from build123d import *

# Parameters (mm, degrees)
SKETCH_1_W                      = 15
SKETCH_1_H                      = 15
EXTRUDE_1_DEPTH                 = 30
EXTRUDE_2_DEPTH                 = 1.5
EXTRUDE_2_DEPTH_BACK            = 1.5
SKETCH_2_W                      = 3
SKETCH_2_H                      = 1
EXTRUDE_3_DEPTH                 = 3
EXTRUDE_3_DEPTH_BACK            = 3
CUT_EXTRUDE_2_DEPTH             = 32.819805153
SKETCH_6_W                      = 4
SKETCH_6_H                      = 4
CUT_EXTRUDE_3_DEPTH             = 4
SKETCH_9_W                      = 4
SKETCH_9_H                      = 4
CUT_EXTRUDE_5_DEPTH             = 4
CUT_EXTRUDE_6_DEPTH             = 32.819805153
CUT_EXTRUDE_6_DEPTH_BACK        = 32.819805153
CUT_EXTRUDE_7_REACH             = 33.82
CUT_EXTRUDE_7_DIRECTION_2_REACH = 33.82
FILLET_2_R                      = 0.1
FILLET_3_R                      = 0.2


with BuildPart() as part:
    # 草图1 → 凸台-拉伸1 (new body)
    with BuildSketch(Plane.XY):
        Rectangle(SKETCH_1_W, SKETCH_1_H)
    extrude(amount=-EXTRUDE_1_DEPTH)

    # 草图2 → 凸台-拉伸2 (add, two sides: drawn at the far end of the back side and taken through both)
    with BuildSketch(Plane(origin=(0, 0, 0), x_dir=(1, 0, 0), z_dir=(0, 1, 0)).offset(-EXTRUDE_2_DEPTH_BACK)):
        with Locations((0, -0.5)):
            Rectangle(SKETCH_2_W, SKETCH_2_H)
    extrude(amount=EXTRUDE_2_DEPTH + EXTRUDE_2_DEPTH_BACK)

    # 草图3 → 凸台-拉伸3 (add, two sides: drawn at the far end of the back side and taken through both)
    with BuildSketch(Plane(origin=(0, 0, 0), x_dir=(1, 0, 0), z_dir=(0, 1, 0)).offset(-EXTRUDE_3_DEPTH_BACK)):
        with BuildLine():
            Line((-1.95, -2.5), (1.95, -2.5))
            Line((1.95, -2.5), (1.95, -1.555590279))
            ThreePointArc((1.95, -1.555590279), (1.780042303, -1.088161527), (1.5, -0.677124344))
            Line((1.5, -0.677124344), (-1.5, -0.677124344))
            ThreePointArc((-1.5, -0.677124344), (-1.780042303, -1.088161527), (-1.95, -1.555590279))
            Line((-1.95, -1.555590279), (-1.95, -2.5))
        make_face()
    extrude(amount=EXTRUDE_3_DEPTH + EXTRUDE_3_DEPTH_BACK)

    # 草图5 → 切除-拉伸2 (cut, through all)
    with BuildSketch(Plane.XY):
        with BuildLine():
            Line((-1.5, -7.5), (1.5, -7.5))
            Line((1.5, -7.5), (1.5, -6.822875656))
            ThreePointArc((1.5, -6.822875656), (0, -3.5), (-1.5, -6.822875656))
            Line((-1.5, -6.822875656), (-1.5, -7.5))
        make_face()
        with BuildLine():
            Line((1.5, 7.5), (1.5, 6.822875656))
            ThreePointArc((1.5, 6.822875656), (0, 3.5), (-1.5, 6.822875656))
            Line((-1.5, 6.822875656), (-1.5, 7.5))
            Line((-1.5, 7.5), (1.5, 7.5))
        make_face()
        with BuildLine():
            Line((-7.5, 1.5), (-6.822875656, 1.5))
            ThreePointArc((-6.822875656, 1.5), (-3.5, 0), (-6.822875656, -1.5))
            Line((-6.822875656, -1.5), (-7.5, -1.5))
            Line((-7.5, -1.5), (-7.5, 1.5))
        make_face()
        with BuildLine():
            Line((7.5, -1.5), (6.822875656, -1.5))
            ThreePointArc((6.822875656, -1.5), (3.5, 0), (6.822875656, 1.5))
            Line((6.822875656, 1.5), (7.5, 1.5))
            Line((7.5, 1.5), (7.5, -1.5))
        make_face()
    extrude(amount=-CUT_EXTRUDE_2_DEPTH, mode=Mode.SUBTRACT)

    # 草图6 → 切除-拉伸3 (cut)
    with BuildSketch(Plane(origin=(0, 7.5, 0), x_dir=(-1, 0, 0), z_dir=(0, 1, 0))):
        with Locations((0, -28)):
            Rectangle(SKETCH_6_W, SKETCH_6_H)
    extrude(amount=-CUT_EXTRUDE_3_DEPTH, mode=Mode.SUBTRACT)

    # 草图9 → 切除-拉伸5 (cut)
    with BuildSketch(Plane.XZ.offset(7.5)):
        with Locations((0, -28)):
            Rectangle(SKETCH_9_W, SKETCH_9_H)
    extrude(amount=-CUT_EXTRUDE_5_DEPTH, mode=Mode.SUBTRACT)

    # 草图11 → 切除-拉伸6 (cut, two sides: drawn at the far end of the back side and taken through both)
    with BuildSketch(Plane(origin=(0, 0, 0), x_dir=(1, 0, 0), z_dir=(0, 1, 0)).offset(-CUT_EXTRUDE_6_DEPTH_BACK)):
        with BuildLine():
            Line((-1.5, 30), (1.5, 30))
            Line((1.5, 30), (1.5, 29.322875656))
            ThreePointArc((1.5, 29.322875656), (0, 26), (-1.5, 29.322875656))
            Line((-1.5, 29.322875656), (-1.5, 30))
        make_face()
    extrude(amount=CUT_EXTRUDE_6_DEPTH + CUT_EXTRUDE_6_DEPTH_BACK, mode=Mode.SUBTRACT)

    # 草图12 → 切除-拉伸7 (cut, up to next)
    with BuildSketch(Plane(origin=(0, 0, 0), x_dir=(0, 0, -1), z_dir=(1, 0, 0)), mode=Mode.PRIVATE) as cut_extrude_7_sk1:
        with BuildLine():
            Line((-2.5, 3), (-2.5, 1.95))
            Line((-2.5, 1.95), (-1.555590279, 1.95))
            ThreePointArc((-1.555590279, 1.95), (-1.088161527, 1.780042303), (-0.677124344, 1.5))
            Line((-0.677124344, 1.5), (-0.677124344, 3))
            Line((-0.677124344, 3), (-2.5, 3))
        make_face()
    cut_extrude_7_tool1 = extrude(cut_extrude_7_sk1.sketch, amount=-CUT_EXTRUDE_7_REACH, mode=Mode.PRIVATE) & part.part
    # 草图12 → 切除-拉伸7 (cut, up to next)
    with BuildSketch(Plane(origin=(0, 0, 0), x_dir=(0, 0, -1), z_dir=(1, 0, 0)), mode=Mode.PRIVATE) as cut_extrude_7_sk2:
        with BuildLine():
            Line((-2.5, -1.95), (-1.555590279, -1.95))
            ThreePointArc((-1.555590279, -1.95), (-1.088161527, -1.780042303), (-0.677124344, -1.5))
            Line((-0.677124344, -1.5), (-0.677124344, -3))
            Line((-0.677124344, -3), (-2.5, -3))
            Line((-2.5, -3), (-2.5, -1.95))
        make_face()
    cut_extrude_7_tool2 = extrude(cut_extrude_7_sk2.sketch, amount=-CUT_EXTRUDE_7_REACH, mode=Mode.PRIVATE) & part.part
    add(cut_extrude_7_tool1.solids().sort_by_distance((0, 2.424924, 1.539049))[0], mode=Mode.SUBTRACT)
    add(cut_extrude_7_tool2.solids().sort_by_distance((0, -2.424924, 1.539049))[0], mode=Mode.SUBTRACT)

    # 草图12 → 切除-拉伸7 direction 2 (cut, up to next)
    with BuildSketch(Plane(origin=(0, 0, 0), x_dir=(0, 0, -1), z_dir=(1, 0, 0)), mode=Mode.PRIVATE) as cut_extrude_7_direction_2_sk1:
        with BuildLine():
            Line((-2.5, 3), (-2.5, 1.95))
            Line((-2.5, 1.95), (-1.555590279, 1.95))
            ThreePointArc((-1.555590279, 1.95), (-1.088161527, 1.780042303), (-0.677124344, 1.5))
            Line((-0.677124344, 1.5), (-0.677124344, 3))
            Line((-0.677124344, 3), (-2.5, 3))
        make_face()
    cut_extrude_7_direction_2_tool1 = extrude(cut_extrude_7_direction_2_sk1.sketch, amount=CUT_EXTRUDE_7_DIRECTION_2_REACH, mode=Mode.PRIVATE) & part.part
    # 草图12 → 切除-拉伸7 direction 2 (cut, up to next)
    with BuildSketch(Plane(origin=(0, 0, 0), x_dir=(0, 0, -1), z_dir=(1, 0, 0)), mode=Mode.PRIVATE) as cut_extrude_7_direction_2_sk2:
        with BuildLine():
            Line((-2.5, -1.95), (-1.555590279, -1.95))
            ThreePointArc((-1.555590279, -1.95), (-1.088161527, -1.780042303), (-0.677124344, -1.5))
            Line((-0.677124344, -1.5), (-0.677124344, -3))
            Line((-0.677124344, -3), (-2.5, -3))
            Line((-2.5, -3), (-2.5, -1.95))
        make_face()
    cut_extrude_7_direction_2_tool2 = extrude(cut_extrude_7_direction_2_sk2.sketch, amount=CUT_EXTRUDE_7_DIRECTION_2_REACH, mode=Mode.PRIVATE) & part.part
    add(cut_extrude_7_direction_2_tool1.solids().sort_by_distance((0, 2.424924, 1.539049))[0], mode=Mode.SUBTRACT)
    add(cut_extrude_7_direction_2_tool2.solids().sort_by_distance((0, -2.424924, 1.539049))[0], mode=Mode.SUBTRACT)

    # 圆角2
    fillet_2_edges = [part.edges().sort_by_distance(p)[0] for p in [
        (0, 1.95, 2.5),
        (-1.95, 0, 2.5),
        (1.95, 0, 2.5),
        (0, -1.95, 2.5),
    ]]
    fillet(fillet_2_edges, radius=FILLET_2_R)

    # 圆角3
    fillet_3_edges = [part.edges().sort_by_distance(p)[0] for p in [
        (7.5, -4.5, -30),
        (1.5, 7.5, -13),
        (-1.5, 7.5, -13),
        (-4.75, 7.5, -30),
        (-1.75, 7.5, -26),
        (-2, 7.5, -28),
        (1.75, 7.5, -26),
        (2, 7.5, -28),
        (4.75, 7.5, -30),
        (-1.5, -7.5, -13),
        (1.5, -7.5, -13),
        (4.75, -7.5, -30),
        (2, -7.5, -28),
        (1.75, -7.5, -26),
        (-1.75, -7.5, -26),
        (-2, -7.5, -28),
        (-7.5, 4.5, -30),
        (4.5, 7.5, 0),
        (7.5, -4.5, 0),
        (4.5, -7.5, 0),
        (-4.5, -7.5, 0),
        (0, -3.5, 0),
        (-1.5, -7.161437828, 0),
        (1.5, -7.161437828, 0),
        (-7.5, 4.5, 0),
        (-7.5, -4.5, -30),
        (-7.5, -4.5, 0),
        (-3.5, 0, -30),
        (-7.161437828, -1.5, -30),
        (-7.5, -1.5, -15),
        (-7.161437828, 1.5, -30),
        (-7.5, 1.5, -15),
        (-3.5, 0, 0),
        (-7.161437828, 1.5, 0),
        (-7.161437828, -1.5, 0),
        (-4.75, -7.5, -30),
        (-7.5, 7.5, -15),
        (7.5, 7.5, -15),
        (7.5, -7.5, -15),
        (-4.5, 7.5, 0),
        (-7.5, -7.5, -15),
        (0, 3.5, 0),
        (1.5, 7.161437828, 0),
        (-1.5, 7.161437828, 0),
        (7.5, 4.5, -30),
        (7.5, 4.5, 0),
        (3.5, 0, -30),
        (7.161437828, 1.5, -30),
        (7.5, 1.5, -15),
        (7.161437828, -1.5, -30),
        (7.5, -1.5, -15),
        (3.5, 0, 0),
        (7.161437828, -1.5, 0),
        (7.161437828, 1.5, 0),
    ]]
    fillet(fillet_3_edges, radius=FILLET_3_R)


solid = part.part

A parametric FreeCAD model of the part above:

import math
import FreeCAD as App
import Part
import Sketcher

V = App.Vector


def edges_at(feature, points):
    """Names of the edges that pass closest to the given points."""
    edges = feature.Shape.Edges
    near = lambda p: min(range(len(edges)), key=lambda i: edges[i].distToShape(Part.Vertex(*p))[0])
    return sorted({f"Edge{near(p) + 1}" for p in points})


def add_polygon(sketch, points):
    """Adds a closed chain of lines whose ends are joined by coincident constraints."""
    first, n = sketch.GeometryCount, len(points)
    for a, b in zip(points, points[1:] + points[:1]):
        sketch.addGeometry(Part.LineSegment(App.Vector(*a, 0), App.Vector(*b, 0)), False)
    for i in range(n):
        sketch.addConstraint(Sketcher.Constraint("Coincident", first + i, 2, first + (i + 1) % n, 1))

doc = App.newDocument("Part")
params = doc.addObject("Spreadsheet::Sheet", "Params")
for row, (alias, value) in enumerate([
    ("sketch1_width", "15 mm"),
    ("pad1_length", "30 mm"),
    ("sketch2_width", "3 mm"),
    ("sketch2_height", "1 mm"),
    ("pad2_length", "1.5 mm"),
    ("pad2_length2", "1.5 mm"),
    ("sketch3_radius", "2 mm"),
    ("sketch3_width", "3 mm"),
    ("sketch3_width2", "3.9 mm"),
    ("pad3_length", "3 mm"),
    ("pad3_length2", "3 mm"),
    ("sketch4_radius", "2 mm"),
    ("sketch4_width", "3 mm"),
    ("sketch5_width", "4 mm"),
    ("pocket2_length", "4 mm"),
    ("sketch6_width", "4 mm"),
    ("pocket3_length", "4 mm"),
    ("sketch7_radius", "2 mm"),
    ("sketch7_width", "3 mm"),
    ("sketch8_radius", "2 mm"),
    ("sketch8_width", "1.5 mm"),
    ("sketch8_width2", "1.05 mm"),
    ("sketch9_radius", "2 mm"),
    ("sketch9_width", "1.5 mm"),
    ("sketch9_width2", "1.05 mm"),
    ("sketch10_radius", "2 mm"),
    ("sketch10_width", "1.5 mm"),
    ("sketch10_width2", "1.05 mm"),
    ("sketch11_radius", "2 mm"),
    ("sketch11_width", "1.5 mm"),
    ("sketch11_width2", "1.05 mm"),
    ("fillet_radius", "0.1 mm"),
    ("fillet2_radius", "0.2 mm"),
], start=1):
    params.set(f"A{row}", alias)
    params.set(f"B{row}", "=" + value)
    params.setAlias(f"B{row}", alias)

body = doc.addObject("PartDesign::Body", "Body")

sketch1 = body.newObject("Sketcher::SketchObject", "Sketch")
sketch1.AttachmentSupport = (doc.getObject("XY_Plane"), [""])
sketch1.MapMode = "FlatFace"
add_polygon(sketch1, [(-7.5, 7.5), (-7.5, -7.5), (7.5, -7.5), (7.5, 7.5)])
sketch1.addConstraint(Sketcher.Constraint("Vertical", 0))
sketch1.addConstraint(Sketcher.Constraint("Horizontal", 1))
sketch1.addConstraint(Sketcher.Constraint("Vertical", 2))
sketch1.addConstraint(Sketcher.Constraint("Horizontal", 3))
sketch1.addConstraint(Sketcher.Constraint("Symmetric", 0, 2, 2, 2, -1, 1))
sketch1.addConstraint(Sketcher.Constraint("Equal", 3, 0))
sketch1.addConstraint(Sketcher.Constraint("DistanceX", 1, 1, 1, 2, 15.0))
sketch1.setExpression("Constraints[10]", "Params.sketch1_width")
pad1 = body.newObject("PartDesign::Pad", "Pad")
pad1.Profile = sketch1
pad1.setExpression("Length", "Params.pad1_length")
pad1.Reversed = True

sketch2 = body.newObject("Sketcher::SketchObject", "Sketch001")
sketch2.AttachmentSupport = (doc.getObject("XZ_Plane"), [""])
sketch2.MapMode = "FlatFace"
add_polygon(sketch2, [(-1.5, 0), (-1.5, 1), (1.5, 1), (1.5, 0)])
sketch2.addConstraint(Sketcher.Constraint("Vertical", 0))
sketch2.addConstraint(Sketcher.Constraint("Horizontal", 1))
sketch2.addConstraint(Sketcher.Constraint("Vertical", 2))
sketch2.addConstraint(Sketcher.Constraint("Horizontal", 3))
sketch2.addConstraint(Sketcher.Constraint("Symmetric", 2, 2, 3, 2, -1, 1))
sketch2.addConstraint(Sketcher.Constraint("DistanceX", 1, 1, 1, 2, 3.0))
sketch2.addConstraint(Sketcher.Constraint("DistanceY", 0, 1, 0, 2, 1.0))
sketch2.setExpression("Constraints[9]", "Params.sketch2_width")
sketch2.setExpression("Constraints[10]", "Params.sketch2_height")
pad2 = body.newObject("PartDesign::Pad", "Pad001")
pad2.Profile = sketch2
pad2.Type = "TwoLengths"
pad2.setExpression("Length", "Params.pad2_length")
pad2.setExpression("Length2", "Params.pad2_length2")
pad2.Reversed = True

sketch3 = body.newObject("Sketcher::SketchObject", "Sketch002")
sketch3.AttachmentSupport = (doc.getObject("XZ_Plane"), [""])
sketch3.MapMode = "FlatFace"
sketch3.addGeometry(Part.LineSegment(V(-1.95, 2.5, 0), V(1.95, 2.5, 0)), False)
sketch3.addGeometry(Part.LineSegment(V(1.95, 2.5, 0), V(1.95, 1.55559, 0)), False)
sketch3.addGeometry(Part.ArcOfCircle(Part.Circle(V(0, 2, 0), V(0, 0, 1), 2), math.radians(-41.409622), math.radians(-12.838568)), False)
sketch3.addGeometry(Part.LineSegment(V(1.5, 0.677124, 0), V(-1.5, 0.677124, 0)), False)
sketch3.addGeometry(Part.ArcOfCircle(Part.Circle(V(0, 2, 0), V(0, 0, 1), 2), math.radians(-167.161432), math.radians(-138.590378)), False)
sketch3.addGeometry(Part.LineSegment(V(-1.95, 1.55559, 0), V(-1.95, 2.5, 0)), False)
sketch3.addConstraint(Sketcher.Constraint("Coincident", 0, 2, 1, 1))
sketch3.addConstraint(Sketcher.Constraint("Coincident", 1, 2, 2, 2))
sketch3.addConstraint(Sketcher.Constraint("Coincident", 2, 1, 3, 1))
sketch3.addConstraint(Sketcher.Constraint("Coincident", 3, 2, 4, 2))
sketch3.addConstraint(Sketcher.Constraint("Coincident", 4, 1, 5, 1))
sketch3.addConstraint(Sketcher.Constraint("Coincident", 5, 2, 0, 1))
sketch3.addConstraint(Sketcher.Constraint("Horizontal", 0))
sketch3.addConstraint(Sketcher.Constraint("Vertical", 1))
sketch3.addConstraint(Sketcher.Constraint("Horizontal", 3))
sketch3.addConstraint(Sketcher.Constraint("Vertical", 5))
sketch3.addConstraint(Sketcher.Constraint("Coincident", 4, 3, 2, 3))
sketch3.addConstraint(Sketcher.Constraint("Equal", 2, 4))
sketch3.addConstraint(Sketcher.Constraint("Symmetric", 1, 2, 4, 1, -2))
sketch3.addConstraint(Sketcher.Constraint("Radius", 2, 2.0))
sketch3.addConstraint(Sketcher.Constraint("DistanceX", 3, 2, 3, 1, 3.0))
sketch3.addConstraint(Sketcher.Constraint("DistanceX", 0, 1, 0, 2, 3.9))
sketch3.addConstraint(Sketcher.Constraint("DistanceY", -1, 1, 2, 3, 2.0))
sketch3.addConstraint(Sketcher.Constraint("DistanceY", -1, 1, 0, 2, 2.5))
sketch3.setExpression("Constraints[13]", "Params.sketch3_radius")
sketch3.setExpression("Constraints[14]", "Params.sketch3_width")
sketch3.setExpression("Constraints[15]", "Params.sketch3_width2")
pad3 = body.newObject("PartDesign::Pad", "Pad002")
pad3.Profile = sketch3
pad3.Type = "TwoLengths"
pad3.setExpression("Length", "Params.pad3_length")
pad3.setExpression("Length2", "Params.pad3_length2")
pad3.Reversed = True

sketch4 = body.newObject("Sketcher::SketchObject", "Sketch003")
sketch4.AttachmentSupport = (doc.getObject("XY_Plane"), [""])
sketch4.MapMode = "FlatFace"
sketch4.addGeometry(Part.LineSegment(V(-1.5, -7.5, 0), V(1.5, -7.5, 0)), False)
sketch4.addGeometry(Part.LineSegment(V(1.5, -7.5, 0), V(1.5, -6.822876, 0)), False)
sketch4.addGeometry(Part.ArcOfCircle(Part.Circle(V(0, -5.5, 0), V(0, 0, 1), 2), math.radians(-41.409622), math.radians(221.409622)), False)
sketch4.addGeometry(Part.LineSegment(V(-1.5, -6.822876, 0), V(-1.5, -7.5, 0)), False)
sketch4.addGeometry(Part.LineSegment(V(1.5, 6.822876, 0), V(1.5, 7.5, 0)), False)
sketch4.addGeometry(Part.LineSegment(V(1.5, 7.5, 0), V(-1.5, 7.5, 0)), False)
sketch4.addGeometry(Part.LineSegment(V(-1.5, 7.5, 0), V(-1.5, 6.822876, 0)), False)
sketch4.addGeometry(Part.ArcOfCircle(Part.Circle(V(0, 5.5, 0), V(0, 0, 1), 2), math.radians(138.590378), math.radians(401.409622)), False)
sketch4.addGeometry(Part.LineSegment(V(-6.822876, 1.5, 0), V(-7.5, 1.5, 0)), False)
sketch4.addGeometry(Part.LineSegment(V(-7.5, 1.5, 0), V(-7.5, -1.5, 0)), False)
sketch4.addGeometry(Part.LineSegment(V(-7.5, -1.5, 0), V(-6.822876, -1.5, 0)), False)
sketch4.addGeometry(Part.ArcOfCircle(Part.Circle(V(-5.5, 0, 0), V(0, 0, 1), 2), math.radians(-131.409622), math.radians(131.409622)), False)
sketch4.addGeometry(Part.LineSegment(V(6.822876, -1.5, 0), V(7.5, -1.5, 0)), False)
sketch4.addGeometry(Part.LineSegment(V(7.5, -1.5, 0), V(7.5, 1.5, 0)), False)
sketch4.addGeometry(Part.LineSegment(V(7.5, 1.5, 0), V(6.822876, 1.5, 0)), False)
sketch4.addGeometry(Part.ArcOfCircle(Part.Circle(V(5.5, 0, 0), V(0, 0, 1), 2), math.radians(48.590378), math.radians(311.409622)), False)
sketch4.addConstraint(Sketcher.Constraint("Coincident", 0, 2, 1, 1))
sketch4.addConstraint(Sketcher.Constraint("Coincident", 1, 2, 2, 1))
sketch4.addConstraint(Sketcher.Constraint("Coincident", 2, 2, 3, 1))
sketch4.addConstraint(Sketcher.Constraint("Coincident", 3, 2, 0, 1))
sketch4.addConstraint(Sketcher.Constraint("Coincident", 4, 2, 5, 1))
sketch4.addConstraint(Sketcher.Constraint("Coincident", 5, 2, 6, 1))
sketch4.addConstraint(Sketcher.Constraint("Coincident", 6, 2, 7, 1))
sketch4.addConstraint(Sketcher.Constraint("Coincident", 7, 2, 4, 1))
sketch4.addConstraint(Sketcher.Constraint("Coincident", 8, 2, 9, 1))
sketch4.addConstraint(Sketcher.Constraint("Coincident", 9, 2, 10, 1))
sketch4.addConstraint(Sketcher.Constraint("Coincident", 10, 2, 11, 1))
sketch4.addConstraint(Sketcher.Constraint("Coincident", 11, 2, 8, 1))
sketch4.addConstraint(Sketcher.Constraint("Coincident", 12, 2, 13, 1))
sketch4.addConstraint(Sketcher.Constraint("Coincident", 13, 2, 14, 1))
sketch4.addConstraint(Sketcher.Constraint("Coincident", 14, 2, 15, 1))
sketch4.addConstraint(Sketcher.Constraint("Coincident", 15, 2, 12, 1))
sketch4.addConstraint(Sketcher.Constraint("Horizontal", 0))
sketch4.addConstraint(Sketcher.Constraint("Vertical", 1))
sketch4.addConstraint(Sketcher.Constraint("Vertical", 3))
sketch4.addConstraint(Sketcher.Constraint("Vertical", 4))
sketch4.addConstraint(Sketcher.Constraint("Horizontal", 5))
sketch4.addConstraint(Sketcher.Constraint("Vertical", 6))
sketch4.addConstraint(Sketcher.Constraint("Horizontal", 8))
sketch4.addConstraint(Sketcher.Constraint("Vertical", 9))
sketch4.addConstraint(Sketcher.Constraint("Horizontal", 10))
sketch4.addConstraint(Sketcher.Constraint("Horizontal", 12))
sketch4.addConstraint(Sketcher.Constraint("Vertical", 13))
sketch4.addConstraint(Sketcher.Constraint("Horizontal", 14))
sketch4.addConstraint(Sketcher.Constraint("Equal", 2, 7))
sketch4.addConstraint(Sketcher.Constraint("Equal", 7, 11))
sketch4.addConstraint(Sketcher.Constraint("Equal", 11, 15))
sketch4.addConstraint(Sketcher.Constraint("Symmetric", 2, 3, 7, 3, -1, 1))
sketch4.addConstraint(Sketcher.Constraint("Symmetric", 11, 3, 15, 3, -1, 1))
sketch4.addConstraint(Sketcher.Constraint("Symmetric", 3, 2, 4, 2, -1, 1))
sketch4.addConstraint(Sketcher.Constraint("Symmetric", 8, 2, 12, 2, -1, 1))
sketch4.addConstraint(Sketcher.Constraint("Symmetric", 1, 2, 2, 2, -2))
sketch4.addConstraint(Sketcher.Constraint("Symmetric", 11, 2, 14, 2, -2))
sketch4.addConstraint(Sketcher.Constraint("Horizontal", 6, 2, 7, 2))
sketch4.addConstraint(Sketcher.Constraint("Horizontal", 10, 2, 12, 2))
sketch4.addConstraint(Sketcher.Constraint("Equal", 14, 1))
sketch4.addConstraint(Sketcher.Constraint("Equal", 5, 9))
sketch4.addConstraint(Sketcher.Constraint("Radius", 2, 2.0))
sketch4.addConstraint(Sketcher.Constraint("DistanceX", 0, 1, 0, 2, 3.0))
sketch4.addConstraint(Sketcher.Constraint("DistanceY", 2, 3, 7, 3, 11.0))
sketch4.addConstraint(Sketcher.Constraint("DistanceX", 11, 3, 15, 3, 11.0))
sketch4.addConstraint(Sketcher.Constraint("DistanceY", 0, 2, 2, 3, 2.0))
sketch4.setExpression("Constraints[41]", "Params.sketch4_radius")
sketch4.setExpression("Constraints[42]", "Params.sketch4_width")
pocket1 = body.newObject("PartDesign::Pocket", "Pocket")
pocket1.Profile = sketch4
pocket1.Type = "ThroughAll"

sketch5 = body.newObject("Sketcher::SketchObject", "Sketch004")
sketch5.AttachmentSupport = (doc.getObject("XZ_Plane"), [""])
sketch5.MapMode = "FlatFace"
sketch5.AttachmentOffset = App.Placement(V(0, 0, -7.5), App.Rotation())
add_polygon(sketch5, [(2, -26), (2, -30), (-2, -30), (-2, -26)])
sketch5.addConstraint(Sketcher.Constraint("Vertical", 0))
sketch5.addConstraint(Sketcher.Constraint("Horizontal", 1))
sketch5.addConstraint(Sketcher.Constraint("Vertical", 2))
sketch5.addConstraint(Sketcher.Constraint("Horizontal", 3))
sketch5.addConstraint(Sketcher.Constraint("Equal", 3, 0))
sketch5.addConstraint(Sketcher.Constraint("DistanceX", 1, 2, 1, 1, 4.0))
sketch5.addConstraint(Sketcher.Constraint("DistanceX", -1, 1, 0, 2, 2.0))
sketch5.addConstraint(Sketcher.Constraint("DistanceY", 0, 2, -1, 1, 30.0))
sketch5.setExpression("Constraints[9]", "Params.sketch5_width")
pocket2 = body.newObject("PartDesign::Pocket", "Pocket001")
pocket2.Profile = sketch5
pocket2.setExpression("Length", "Params.pocket2_length")
pocket2.Reversed = True

sketch6 = body.newObject("Sketcher::SketchObject", "Sketch005")
sketch6.AttachmentSupport = (doc.getObject("XZ_Plane"), [""])
sketch6.MapMode = "FlatFace"
sketch6.AttachmentOffset = App.Placement(V(0, 0, 7.5), App.Rotation())
add_polygon(sketch6, [(-2, -26), (-2, -30), (2, -30), (2, -26)])
sketch6.addConstraint(Sketcher.Constraint("Vertical", 0))
sketch6.addConstraint(Sketcher.Constraint("Horizontal", 1))
sketch6.addConstraint(Sketcher.Constraint("Vertical", 2))
sketch6.addConstraint(Sketcher.Constraint("Horizontal", 3))
sketch6.addConstraint(Sketcher.Constraint("Equal", 3, 0))
sketch6.addConstraint(Sketcher.Constraint("DistanceX", 1, 1, 1, 2, 4.0))
sketch6.addConstraint(Sketcher.Constraint("DistanceX", 0, 2, -1, 1, 2.0))
sketch6.addConstraint(Sketcher.Constraint("DistanceY", 0, 2, -1, 1, 30.0))
sketch6.setExpression("Constraints[9]", "Params.sketch6_width")
pocket3 = body.newObject("PartDesign::Pocket", "Pocket002")
pocket3.Profile = sketch6
pocket3.setExpression("Length", "Params.pocket3_length")

sketch7 = body.newObject("Sketcher::SketchObject", "Sketch006")
sketch7.AttachmentSupport = (doc.getObject("XZ_Plane"), [""])
sketch7.MapMode = "FlatFace"
sketch7.addGeometry(Part.LineSegment(V(1.5, -30, 0), V(-1.5, -30, 0)), False)
sketch7.addGeometry(Part.LineSegment(V(-1.5, -30, 0), V(-1.5, -29.322876, 0)), False)
sketch7.addGeometry(Part.ArcOfCircle(Part.Circle(V(0, -28, 0), V(0, 0, 1), 2), math.radians(-41.409622), math.radians(221.409622)), False)
sketch7.addGeometry(Part.LineSegment(V(1.5, -29.322876, 0), V(1.5, -30, 0)), False)
sketch7.addConstraint(Sketcher.Constraint("Coincident", 0, 2, 1, 1))
sketch7.addConstraint(Sketcher.Constraint("Coincident", 1, 2, 2, 2))
sketch7.addConstraint(Sketcher.Constraint("Coincident", 2, 1, 3, 1))
sketch7.addConstraint(Sketcher.Constraint("Coincident", 3, 2, 0, 1))
sketch7.addConstraint(Sketcher.Constraint("Horizontal", 0))
sketch7.addConstraint(Sketcher.Constraint("Vertical", 1))
sketch7.addConstraint(Sketcher.Constraint("Vertical", 3))
sketch7.addConstraint(Sketcher.Constraint("Symmetric", 1, 2, 2, 1, -2))
sketch7.addConstraint(Sketcher.Constraint("Radius", 2, 2.0))
sketch7.addConstraint(Sketcher.Constraint("DistanceX", 0, 2, 0, 1, 3.0))
sketch7.addConstraint(Sketcher.Constraint("DistanceY", 2, 3, -1, 1, 28.0))
sketch7.addConstraint(Sketcher.Constraint("DistanceY", 0, 2, -1, 1, 30.0))
sketch7.setExpression("Constraints[8]", "Params.sketch7_radius")
sketch7.setExpression("Constraints[9]", "Params.sketch7_width")
pocket4 = body.newObject("PartDesign::Pocket", "Pocket003")
pocket4.Profile = sketch7
pocket4.Type = "ThroughAll"
pocket4.Midplane = True

sketch8 = body.newObject("Sketcher::SketchObject", "Sketch007")
sketch8.AttachmentSupport = (doc.getObject("YZ_Plane"), [""])
sketch8.MapMode = "FlatFace"
sketch8.addGeometry(Part.LineSegment(V(3, 2.5, 0), V(1.95, 2.5, 0)), False)
sketch8.addGeometry(Part.LineSegment(V(1.95, 2.5, 0), V(1.95, 1.55559, 0)), False)
sketch8.addGeometry(Part.ArcOfCircle(Part.Circle(V(0, 2, 0), V(0, 0, 1), 2), math.radians(-41.409622), math.radians(-12.838568)), False)
sketch8.addGeometry(Part.LineSegment(V(1.5, 0.677124, 0), V(3, 0.677124, 0)), False)
sketch8.addGeometry(Part.LineSegment(V(3, 0.677124, 0), V(3, 2.5, 0)), False)
sketch8.addConstraint(Sketcher.Constraint("Coincident", 0, 2, 1, 1))
sketch8.addConstraint(Sketcher.Constraint("Coincident", 1, 2, 2, 2))
sketch8.addConstraint(Sketcher.Constraint("Coincident", 2, 1, 3, 1))
sketch8.addConstraint(Sketcher.Constraint("Coincident", 3, 2, 4, 1))
sketch8.addConstraint(Sketcher.Constraint("Coincident", 4, 2, 0, 1))
sketch8.addConstraint(Sketcher.Constraint("Horizontal", 0))
sketch8.addConstraint(Sketcher.Constraint("Vertical", 1))
sketch8.addConstraint(Sketcher.Constraint("Horizontal", 3))
sketch8.addConstraint(Sketcher.Constraint("Vertical", 4))
sketch8.addConstraint(Sketcher.Constraint("PointOnObject", 2, 3, -2))
sketch8.addConstraint(Sketcher.Constraint("Radius", 2, 2.0))
sketch8.addConstraint(Sketcher.Constraint("DistanceX", 3, 1, 3, 2, 1.5))
sketch8.addConstraint(Sketcher.Constraint("DistanceY", -1, 1, 2, 3, 2.0))
sketch8.addConstraint(Sketcher.Constraint("DistanceX", -1, 1, 3, 2, 3.0))
sketch8.addConstraint(Sketcher.Constraint("DistanceX", 0, 2, 0, 1, 1.05))
sketch8.addConstraint(Sketcher.Constraint("DistanceY", -1, 1, 0, 2, 2.5))
sketch8.setExpression("Constraints[10]", "Params.sketch8_radius")
sketch8.setExpression("Constraints[11]", "Params.sketch8_width")
sketch8.setExpression("Constraints[14]", "Params.sketch8_width2")
pocket5 = body.newObject("PartDesign::Pocket", "Pocket004")
pocket5.Profile = sketch8
pocket5.Type = "UpToFirst"

sketch9 = body.newObject("Sketcher::SketchObject", "Sketch008")
sketch9.AttachmentSupport = (doc.getObject("YZ_Plane"), [""])
sketch9.MapMode = "FlatFace"
sketch9.addGeometry(Part.LineSegment(V(-1.95, 1.55559, 0), V(-1.95, 2.5, 0)), False)
sketch9.addGeometry(Part.LineSegment(V(-1.95, 2.5, 0), V(-3, 2.5, 0)), False)
sketch9.addGeometry(Part.LineSegment(V(-3, 2.5, 0), V(-3, 0.677124, 0)), False)
sketch9.addGeometry(Part.LineSegment(V(-3, 0.677124, 0), V(-1.5, 0.677124, 0)), False)
sketch9.addGeometry(Part.ArcOfCircle(Part.Circle(V(0, 2, 0), V(0, 0, 1), 2), math.radians(-167.161432), math.radians(-138.590378)), False)
sketch9.addConstraint(Sketcher.Constraint("Coincident", 0, 2, 1, 1))
sketch9.addConstraint(Sketcher.Constraint("Coincident", 1, 2, 2, 1))
sketch9.addConstraint(Sketcher.Constraint("Coincident", 2, 2, 3, 1))
sketch9.addConstraint(Sketcher.Constraint("Coincident", 3, 2, 4, 2))
sketch9.addConstraint(Sketcher.Constraint("Coincident", 4, 1, 0, 1))
sketch9.addConstraint(Sketcher.Constraint("Vertical", 0))
sketch9.addConstraint(Sketcher.Constraint("Horizontal", 1))
sketch9.addConstraint(Sketcher.Constraint("Vertical", 2))
sketch9.addConstraint(Sketcher.Constraint("Horizontal", 3))
sketch9.addConstraint(Sketcher.Constraint("PointOnObject", 4, 3, -2))
sketch9.addConstraint(Sketcher.Constraint("Radius", 4, 2.0))
sketch9.addConstraint(Sketcher.Constraint("DistanceX", 3, 1, 3, 2, 1.5))
sketch9.addConstraint(Sketcher.Constraint("DistanceY", -1, 1, 4, 3, 2.0))
sketch9.addConstraint(Sketcher.Constraint("DistanceX", 1, 2, -1, 1, 3.0))
sketch9.addConstraint(Sketcher.Constraint("DistanceX", 1, 2, 1, 1, 1.05))
sketch9.addConstraint(Sketcher.Constraint("DistanceY", -1, 1, 0, 2, 2.5))
sketch9.setExpression("Constraints[10]", "Params.sketch9_radius")
sketch9.setExpression("Constraints[11]", "Params.sketch9_width")
sketch9.setExpression("Constraints[14]", "Params.sketch9_width2")
pocket6 = body.newObject("PartDesign::Pocket", "Pocket005")
pocket6.Profile = sketch9
pocket6.Type = "UpToFirst"

sketch10 = body.newObject("Sketcher::SketchObject", "Sketch009")
sketch10.AttachmentSupport = (doc.getObject("YZ_Plane"), [""])
sketch10.MapMode = "FlatFace"
sketch10.addGeometry(Part.LineSegment(V(3, 2.5, 0), V(1.95, 2.5, 0)), False)
sketch10.addGeometry(Part.LineSegment(V(1.95, 2.5, 0), V(1.95, 1.55559, 0)), False)
sketch10.addGeometry(Part.ArcOfCircle(Part.Circle(V(0, 2, 0), V(0, 0, 1), 2), math.radians(-41.409622), math.radians(-12.838568)), False)
sketch10.addGeometry(Part.LineSegment(V(1.5, 0.677124, 0), V(3, 0.677124, 0)), False)
sketch10.addGeometry(Part.LineSegment(V(3, 0.677124, 0), V(3, 2.5, 0)), False)
sketch10.addConstraint(Sketcher.Constraint("Coincident", 0, 2, 1, 1))
sketch10.addConstraint(Sketcher.Constraint("Coincident", 1, 2, 2, 2))
sketch10.addConstraint(Sketcher.Constraint("Coincident", 2, 1, 3, 1))
sketch10.addConstraint(Sketcher.Constraint("Coincident", 3, 2, 4, 1))
sketch10.addConstraint(Sketcher.Constraint("Coincident", 4, 2, 0, 1))
sketch10.addConstraint(Sketcher.Constraint("Horizontal", 0))
sketch10.addConstraint(Sketcher.Constraint("Vertical", 1))
sketch10.addConstraint(Sketcher.Constraint("Horizontal", 3))
sketch10.addConstraint(Sketcher.Constraint("Vertical", 4))
sketch10.addConstraint(Sketcher.Constraint("PointOnObject", 2, 3, -2))
sketch10.addConstraint(Sketcher.Constraint("Radius", 2, 2.0))
sketch10.addConstraint(Sketcher.Constraint("DistanceX", 3, 1, 3, 2, 1.5))
sketch10.addConstraint(Sketcher.Constraint("DistanceY", -1, 1, 2, 3, 2.0))
sketch10.addConstraint(Sketcher.Constraint("DistanceX", -1, 1, 3, 2, 3.0))
sketch10.addConstraint(Sketcher.Constraint("DistanceX", 0, 2, 0, 1, 1.05))
sketch10.addConstraint(Sketcher.Constraint("DistanceY", -1, 1, 0, 2, 2.5))
sketch10.setExpression("Constraints[10]", "Params.sketch10_radius")
sketch10.setExpression("Constraints[11]", "Params.sketch10_width")
sketch10.setExpression("Constraints[14]", "Params.sketch10_width2")
pocket7 = body.newObject("PartDesign::Pocket", "Pocket006")
pocket7.Profile = sketch10
pocket7.Type = "UpToFirst"
pocket7.Reversed = True

sketch11 = body.newObject("Sketcher::SketchObject", "Sketch010")
sketch11.AttachmentSupport = (doc.getObject("YZ_Plane"), [""])
sketch11.MapMode = "FlatFace"
sketch11.addGeometry(Part.LineSegment(V(-1.95, 1.55559, 0), V(-1.95, 2.5, 0)), False)
sketch11.addGeometry(Part.LineSegment(V(-1.95, 2.5, 0), V(-3, 2.5, 0)), False)
sketch11.addGeometry(Part.LineSegment(V(-3, 2.5, 0), V(-3, 0.677124, 0)), False)
sketch11.addGeometry(Part.LineSegment(V(-3, 0.677124, 0), V(-1.5, 0.677124, 0)), False)
sketch11.addGeometry(Part.ArcOfCircle(Part.Circle(V(0, 2, 0), V(0, 0, 1), 2), math.radians(-167.161432), math.radians(-138.590378)), False)
sketch11.addConstraint(Sketcher.Constraint("Coincident", 0, 2, 1, 1))
sketch11.addConstraint(Sketcher.Constraint("Coincident", 1, 2, 2, 1))
sketch11.addConstraint(Sketcher.Constraint("Coincident", 2, 2, 3, 1))
sketch11.addConstraint(Sketcher.Constraint("Coincident", 3, 2, 4, 2))
sketch11.addConstraint(Sketcher.Constraint("Coincident", 4, 1, 0, 1))
sketch11.addConstraint(Sketcher.Constraint("Vertical", 0))
sketch11.addConstraint(Sketcher.Constraint("Horizontal", 1))
sketch11.addConstraint(Sketcher.Constraint("Vertical", 2))
sketch11.addConstraint(Sketcher.Constraint("Horizontal", 3))
sketch11.addConstraint(Sketcher.Constraint("PointOnObject", 4, 3, -2))
sketch11.addConstraint(Sketcher.Constraint("Radius", 4, 2.0))
sketch11.addConstraint(Sketcher.Constraint("DistanceX", 3, 1, 3, 2, 1.5))
sketch11.addConstraint(Sketcher.Constraint("DistanceY", -1, 1, 4, 3, 2.0))
sketch11.addConstraint(Sketcher.Constraint("DistanceX", 1, 2, -1, 1, 3.0))
sketch11.addConstraint(Sketcher.Constraint("DistanceX", 1, 2, 1, 1, 1.05))
sketch11.addConstraint(Sketcher.Constraint("DistanceY", -1, 1, 0, 2, 2.5))
sketch11.setExpression("Constraints[10]", "Params.sketch11_radius")
sketch11.setExpression("Constraints[11]", "Params.sketch11_width")
sketch11.setExpression("Constraints[14]", "Params.sketch11_width2")
pocket8 = body.newObject("PartDesign::Pocket", "Pocket007")
pocket8.Profile = sketch11
pocket8.Type = "UpToFirst"
pocket8.Reversed = True
doc.recompute()

fillet = body.newObject("PartDesign::Fillet", "Fillet")
fillet.Base = (pocket8, edges_at(pocket8, [
    (0, 1.95, 2.5),
    (-1.95, 0, 2.5),
    (1.95, 0, 2.5),
    (0, -1.95, 2.5),
]))
fillet.setExpression("Radius", "Params.fillet_radius")
doc.recompute()

fillet2 = body.newObject("PartDesign::Fillet", "Fillet001")
fillet2.Base = (fillet, edges_at(fillet, [
    (7.5, -4.5, -30),
    (1.5, 7.5, -13),
    (-1.5, 7.5, -13),
    (-4.75, 7.5, -30),
    (-1.75, 7.5, -26),
    (-2, 7.5, -28),
    (1.75, 7.5, -26),
    (2, 7.5, -28),
    (4.75, 7.5, -30),
    (-1.5, -7.5, -13),
    (1.5, -7.5, -13),
    (4.75, -7.5, -30),
    (2, -7.5, -28),
    (1.75, -7.5, -26),
    (-1.75, -7.5, -26),
    (-2, -7.5, -28),
    (-7.5, 4.5, -30),
    (4.5, 7.5, 0),
    (7.5, -4.5, 0),
    (4.5, -7.5, 0),
    (-4.5, -7.5, 0),
    (0, -3.5, 0),
    (-1.5, -7.161, 0),
    (1.5, -7.161, 0),
    (-7.5, 4.5, 0),
    (-7.5, -4.5, -30),
    (-7.5, -4.5, 0),
    (-3.5, 0, -30),
    (-7.161, -1.5, -30),
    (-7.5, -1.5, -15),
    (-7.161, 1.5, -30),
    (-7.5, 1.5, -15),
    (-3.5, 0, 0),
    (-7.161, 1.5, 0),
    (-7.161, -1.5, 0),
    (-4.75, -7.5, -30),
    (-7.5, 7.5, -15),
    (7.5, 7.5, -15),
    (7.5, -7.5, -15),
    (-4.5, 7.5, 0),
    (-7.5, -7.5, -15),
    (0, 3.5, 0),
    (1.5, 7.161, 0),
    (-1.5, 7.161, 0),
    (7.5, 4.5, -30),
    (7.5, 4.5, 0),
    (3.5, 0, -30),
    (7.161, 1.5, -30),
    (7.5, 1.5, -15),
    (7.161, -1.5, -30),
    (7.5, -1.5, -15),
    (3.5, 0, 0),
    (7.161, -1.5, 0),
    (7.161, 1.5, 0),
]))
fillet2.setExpression("Radius", "Params.fillet2_radius")

doc.recompute()
